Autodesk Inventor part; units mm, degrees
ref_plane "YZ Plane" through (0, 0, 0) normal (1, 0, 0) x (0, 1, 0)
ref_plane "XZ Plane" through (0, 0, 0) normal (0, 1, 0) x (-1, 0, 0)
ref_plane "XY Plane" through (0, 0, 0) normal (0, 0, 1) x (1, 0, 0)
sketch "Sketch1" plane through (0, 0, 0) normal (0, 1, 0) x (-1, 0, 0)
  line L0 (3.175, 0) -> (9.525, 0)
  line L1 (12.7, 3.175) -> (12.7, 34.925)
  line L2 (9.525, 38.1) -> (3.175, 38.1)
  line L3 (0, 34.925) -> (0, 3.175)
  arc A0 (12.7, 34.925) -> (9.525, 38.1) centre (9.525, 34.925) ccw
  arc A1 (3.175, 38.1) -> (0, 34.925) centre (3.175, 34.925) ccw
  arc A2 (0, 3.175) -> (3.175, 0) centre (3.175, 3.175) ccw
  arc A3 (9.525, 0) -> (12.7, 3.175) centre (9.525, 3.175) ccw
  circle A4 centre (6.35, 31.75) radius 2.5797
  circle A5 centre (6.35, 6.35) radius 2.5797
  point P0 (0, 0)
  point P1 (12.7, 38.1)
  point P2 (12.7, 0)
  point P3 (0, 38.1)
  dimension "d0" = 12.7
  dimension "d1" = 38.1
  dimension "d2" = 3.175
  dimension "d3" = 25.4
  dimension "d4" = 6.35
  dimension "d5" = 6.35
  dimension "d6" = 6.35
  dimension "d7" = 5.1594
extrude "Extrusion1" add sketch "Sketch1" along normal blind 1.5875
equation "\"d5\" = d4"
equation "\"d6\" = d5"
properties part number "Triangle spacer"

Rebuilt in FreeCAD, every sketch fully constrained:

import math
import FreeCAD as App
import Part
import Sketcher

V = App.Vector
Q = App.Units.Quantity

doc = App.newDocument("Part")
body = doc.addObject("PartDesign::Body", "Body")

sketch1 = body.newObject("Sketcher::SketchObject", "Sketch")
sketch1.AttachmentSupport = (doc.getObject("XZ_Plane"), [""])
sketch1.MapMode = "FlatFace"
sketch1.addGeometry([
    Part.ArcOfCircle(Part.Circle(V(-3.175, 3.175, 0), V(0, 0, 1), 3.175), math.radians(-90), math.radians(0)),
    Part.LineSegment(V(-3.175, 0, 0), V(-9.525, 0, 0)),
    Part.ArcOfCircle(Part.Circle(V(-9.525, 3.175, 0), V(0, 0, 1), 3.175), math.radians(180), math.radians(270)),
    Part.LineSegment(V(-12.7, 3.175, 0), V(-12.7, 34.925, 0)),
    Part.ArcOfCircle(Part.Circle(V(-9.525, 34.925, 0), V(0, 0, 1), 3.175), math.radians(90), math.radians(180)),
    Part.LineSegment(V(-9.525, 38.1, 0), V(-3.175, 38.1, 0)),
    Part.ArcOfCircle(Part.Circle(V(-3.175, 34.925, 0), V(0, 0, 1), 3.175), math.radians(0), math.radians(90)),
    Part.LineSegment(V(0, 34.925, 0), V(0, 3.175, 0)),
    Part.Circle(V(-6.35, 6.35, 0), V(0, 0, 1), 2.5797),
    Part.Circle(V(-6.35, 31.75, 0), V(0, 0, 1), 2.5797),
], False)
sketch1.addConstraint([
    Sketcher.Constraint("Tangent", 0, 1, 1, 1),
    Sketcher.Constraint("Tangent", 1, 2, 2, 2),
    Sketcher.Constraint("Tangent", 2, 1, 3, 1),
    Sketcher.Constraint("Tangent", 3, 2, 4, 2),
    Sketcher.Constraint("Tangent", 4, 1, 5, 1),
    Sketcher.Constraint("Tangent", 5, 2, 6, 2),
    Sketcher.Constraint("Tangent", 6, 1, 7, 1),
    Sketcher.Constraint("Tangent", 7, 2, 0, 2),
    Sketcher.Constraint("Horizontal", 1),
    Sketcher.Constraint("Vertical", 3),
    Sketcher.Constraint("Horizontal", 5),
    Sketcher.Constraint("Vertical", 7),
    Sketcher.Constraint("Equal", 0, 2),
    Sketcher.Constraint("Equal", 2, 4),
    Sketcher.Constraint("Equal", 4, 6),
    Sketcher.Constraint("Equal", 8, 9),
    Sketcher.Constraint("PointOnObject", 0, 1, -1),
    Sketcher.Constraint("PointOnObject", 6, 1, -2),
    Sketcher.Constraint("Vertical", 8, 3, 9, 3),
    Sketcher.Constraint("Diameter", 8, Q("0.203126 in")),
    Sketcher.Constraint("Radius", 0, Q("0.125 in")),
    Sketcher.Constraint("DistanceY", 8, 3, 9, 3, Q("1 in")),
    Sketcher.Constraint("DistanceX", 1, 2, 1, 1, Q("0.25 in")),
    Sketcher.Constraint("DistanceY", -1, 1, 4, 1, Q("1.5 in")),
    Sketcher.Constraint("DistanceX", 8, 3, -1, 1, Q("0.25 in")),
    Sketcher.Constraint("DistanceY", -1, 1, 8, 3, Q("0.25 in")),
])
pad1 = body.newObject("PartDesign::Pad", "Pad")
pad1.Profile = sketch1
pad1.Length = Q("0.0625 in")
pad1.Reversed = True

doc.recompute()
